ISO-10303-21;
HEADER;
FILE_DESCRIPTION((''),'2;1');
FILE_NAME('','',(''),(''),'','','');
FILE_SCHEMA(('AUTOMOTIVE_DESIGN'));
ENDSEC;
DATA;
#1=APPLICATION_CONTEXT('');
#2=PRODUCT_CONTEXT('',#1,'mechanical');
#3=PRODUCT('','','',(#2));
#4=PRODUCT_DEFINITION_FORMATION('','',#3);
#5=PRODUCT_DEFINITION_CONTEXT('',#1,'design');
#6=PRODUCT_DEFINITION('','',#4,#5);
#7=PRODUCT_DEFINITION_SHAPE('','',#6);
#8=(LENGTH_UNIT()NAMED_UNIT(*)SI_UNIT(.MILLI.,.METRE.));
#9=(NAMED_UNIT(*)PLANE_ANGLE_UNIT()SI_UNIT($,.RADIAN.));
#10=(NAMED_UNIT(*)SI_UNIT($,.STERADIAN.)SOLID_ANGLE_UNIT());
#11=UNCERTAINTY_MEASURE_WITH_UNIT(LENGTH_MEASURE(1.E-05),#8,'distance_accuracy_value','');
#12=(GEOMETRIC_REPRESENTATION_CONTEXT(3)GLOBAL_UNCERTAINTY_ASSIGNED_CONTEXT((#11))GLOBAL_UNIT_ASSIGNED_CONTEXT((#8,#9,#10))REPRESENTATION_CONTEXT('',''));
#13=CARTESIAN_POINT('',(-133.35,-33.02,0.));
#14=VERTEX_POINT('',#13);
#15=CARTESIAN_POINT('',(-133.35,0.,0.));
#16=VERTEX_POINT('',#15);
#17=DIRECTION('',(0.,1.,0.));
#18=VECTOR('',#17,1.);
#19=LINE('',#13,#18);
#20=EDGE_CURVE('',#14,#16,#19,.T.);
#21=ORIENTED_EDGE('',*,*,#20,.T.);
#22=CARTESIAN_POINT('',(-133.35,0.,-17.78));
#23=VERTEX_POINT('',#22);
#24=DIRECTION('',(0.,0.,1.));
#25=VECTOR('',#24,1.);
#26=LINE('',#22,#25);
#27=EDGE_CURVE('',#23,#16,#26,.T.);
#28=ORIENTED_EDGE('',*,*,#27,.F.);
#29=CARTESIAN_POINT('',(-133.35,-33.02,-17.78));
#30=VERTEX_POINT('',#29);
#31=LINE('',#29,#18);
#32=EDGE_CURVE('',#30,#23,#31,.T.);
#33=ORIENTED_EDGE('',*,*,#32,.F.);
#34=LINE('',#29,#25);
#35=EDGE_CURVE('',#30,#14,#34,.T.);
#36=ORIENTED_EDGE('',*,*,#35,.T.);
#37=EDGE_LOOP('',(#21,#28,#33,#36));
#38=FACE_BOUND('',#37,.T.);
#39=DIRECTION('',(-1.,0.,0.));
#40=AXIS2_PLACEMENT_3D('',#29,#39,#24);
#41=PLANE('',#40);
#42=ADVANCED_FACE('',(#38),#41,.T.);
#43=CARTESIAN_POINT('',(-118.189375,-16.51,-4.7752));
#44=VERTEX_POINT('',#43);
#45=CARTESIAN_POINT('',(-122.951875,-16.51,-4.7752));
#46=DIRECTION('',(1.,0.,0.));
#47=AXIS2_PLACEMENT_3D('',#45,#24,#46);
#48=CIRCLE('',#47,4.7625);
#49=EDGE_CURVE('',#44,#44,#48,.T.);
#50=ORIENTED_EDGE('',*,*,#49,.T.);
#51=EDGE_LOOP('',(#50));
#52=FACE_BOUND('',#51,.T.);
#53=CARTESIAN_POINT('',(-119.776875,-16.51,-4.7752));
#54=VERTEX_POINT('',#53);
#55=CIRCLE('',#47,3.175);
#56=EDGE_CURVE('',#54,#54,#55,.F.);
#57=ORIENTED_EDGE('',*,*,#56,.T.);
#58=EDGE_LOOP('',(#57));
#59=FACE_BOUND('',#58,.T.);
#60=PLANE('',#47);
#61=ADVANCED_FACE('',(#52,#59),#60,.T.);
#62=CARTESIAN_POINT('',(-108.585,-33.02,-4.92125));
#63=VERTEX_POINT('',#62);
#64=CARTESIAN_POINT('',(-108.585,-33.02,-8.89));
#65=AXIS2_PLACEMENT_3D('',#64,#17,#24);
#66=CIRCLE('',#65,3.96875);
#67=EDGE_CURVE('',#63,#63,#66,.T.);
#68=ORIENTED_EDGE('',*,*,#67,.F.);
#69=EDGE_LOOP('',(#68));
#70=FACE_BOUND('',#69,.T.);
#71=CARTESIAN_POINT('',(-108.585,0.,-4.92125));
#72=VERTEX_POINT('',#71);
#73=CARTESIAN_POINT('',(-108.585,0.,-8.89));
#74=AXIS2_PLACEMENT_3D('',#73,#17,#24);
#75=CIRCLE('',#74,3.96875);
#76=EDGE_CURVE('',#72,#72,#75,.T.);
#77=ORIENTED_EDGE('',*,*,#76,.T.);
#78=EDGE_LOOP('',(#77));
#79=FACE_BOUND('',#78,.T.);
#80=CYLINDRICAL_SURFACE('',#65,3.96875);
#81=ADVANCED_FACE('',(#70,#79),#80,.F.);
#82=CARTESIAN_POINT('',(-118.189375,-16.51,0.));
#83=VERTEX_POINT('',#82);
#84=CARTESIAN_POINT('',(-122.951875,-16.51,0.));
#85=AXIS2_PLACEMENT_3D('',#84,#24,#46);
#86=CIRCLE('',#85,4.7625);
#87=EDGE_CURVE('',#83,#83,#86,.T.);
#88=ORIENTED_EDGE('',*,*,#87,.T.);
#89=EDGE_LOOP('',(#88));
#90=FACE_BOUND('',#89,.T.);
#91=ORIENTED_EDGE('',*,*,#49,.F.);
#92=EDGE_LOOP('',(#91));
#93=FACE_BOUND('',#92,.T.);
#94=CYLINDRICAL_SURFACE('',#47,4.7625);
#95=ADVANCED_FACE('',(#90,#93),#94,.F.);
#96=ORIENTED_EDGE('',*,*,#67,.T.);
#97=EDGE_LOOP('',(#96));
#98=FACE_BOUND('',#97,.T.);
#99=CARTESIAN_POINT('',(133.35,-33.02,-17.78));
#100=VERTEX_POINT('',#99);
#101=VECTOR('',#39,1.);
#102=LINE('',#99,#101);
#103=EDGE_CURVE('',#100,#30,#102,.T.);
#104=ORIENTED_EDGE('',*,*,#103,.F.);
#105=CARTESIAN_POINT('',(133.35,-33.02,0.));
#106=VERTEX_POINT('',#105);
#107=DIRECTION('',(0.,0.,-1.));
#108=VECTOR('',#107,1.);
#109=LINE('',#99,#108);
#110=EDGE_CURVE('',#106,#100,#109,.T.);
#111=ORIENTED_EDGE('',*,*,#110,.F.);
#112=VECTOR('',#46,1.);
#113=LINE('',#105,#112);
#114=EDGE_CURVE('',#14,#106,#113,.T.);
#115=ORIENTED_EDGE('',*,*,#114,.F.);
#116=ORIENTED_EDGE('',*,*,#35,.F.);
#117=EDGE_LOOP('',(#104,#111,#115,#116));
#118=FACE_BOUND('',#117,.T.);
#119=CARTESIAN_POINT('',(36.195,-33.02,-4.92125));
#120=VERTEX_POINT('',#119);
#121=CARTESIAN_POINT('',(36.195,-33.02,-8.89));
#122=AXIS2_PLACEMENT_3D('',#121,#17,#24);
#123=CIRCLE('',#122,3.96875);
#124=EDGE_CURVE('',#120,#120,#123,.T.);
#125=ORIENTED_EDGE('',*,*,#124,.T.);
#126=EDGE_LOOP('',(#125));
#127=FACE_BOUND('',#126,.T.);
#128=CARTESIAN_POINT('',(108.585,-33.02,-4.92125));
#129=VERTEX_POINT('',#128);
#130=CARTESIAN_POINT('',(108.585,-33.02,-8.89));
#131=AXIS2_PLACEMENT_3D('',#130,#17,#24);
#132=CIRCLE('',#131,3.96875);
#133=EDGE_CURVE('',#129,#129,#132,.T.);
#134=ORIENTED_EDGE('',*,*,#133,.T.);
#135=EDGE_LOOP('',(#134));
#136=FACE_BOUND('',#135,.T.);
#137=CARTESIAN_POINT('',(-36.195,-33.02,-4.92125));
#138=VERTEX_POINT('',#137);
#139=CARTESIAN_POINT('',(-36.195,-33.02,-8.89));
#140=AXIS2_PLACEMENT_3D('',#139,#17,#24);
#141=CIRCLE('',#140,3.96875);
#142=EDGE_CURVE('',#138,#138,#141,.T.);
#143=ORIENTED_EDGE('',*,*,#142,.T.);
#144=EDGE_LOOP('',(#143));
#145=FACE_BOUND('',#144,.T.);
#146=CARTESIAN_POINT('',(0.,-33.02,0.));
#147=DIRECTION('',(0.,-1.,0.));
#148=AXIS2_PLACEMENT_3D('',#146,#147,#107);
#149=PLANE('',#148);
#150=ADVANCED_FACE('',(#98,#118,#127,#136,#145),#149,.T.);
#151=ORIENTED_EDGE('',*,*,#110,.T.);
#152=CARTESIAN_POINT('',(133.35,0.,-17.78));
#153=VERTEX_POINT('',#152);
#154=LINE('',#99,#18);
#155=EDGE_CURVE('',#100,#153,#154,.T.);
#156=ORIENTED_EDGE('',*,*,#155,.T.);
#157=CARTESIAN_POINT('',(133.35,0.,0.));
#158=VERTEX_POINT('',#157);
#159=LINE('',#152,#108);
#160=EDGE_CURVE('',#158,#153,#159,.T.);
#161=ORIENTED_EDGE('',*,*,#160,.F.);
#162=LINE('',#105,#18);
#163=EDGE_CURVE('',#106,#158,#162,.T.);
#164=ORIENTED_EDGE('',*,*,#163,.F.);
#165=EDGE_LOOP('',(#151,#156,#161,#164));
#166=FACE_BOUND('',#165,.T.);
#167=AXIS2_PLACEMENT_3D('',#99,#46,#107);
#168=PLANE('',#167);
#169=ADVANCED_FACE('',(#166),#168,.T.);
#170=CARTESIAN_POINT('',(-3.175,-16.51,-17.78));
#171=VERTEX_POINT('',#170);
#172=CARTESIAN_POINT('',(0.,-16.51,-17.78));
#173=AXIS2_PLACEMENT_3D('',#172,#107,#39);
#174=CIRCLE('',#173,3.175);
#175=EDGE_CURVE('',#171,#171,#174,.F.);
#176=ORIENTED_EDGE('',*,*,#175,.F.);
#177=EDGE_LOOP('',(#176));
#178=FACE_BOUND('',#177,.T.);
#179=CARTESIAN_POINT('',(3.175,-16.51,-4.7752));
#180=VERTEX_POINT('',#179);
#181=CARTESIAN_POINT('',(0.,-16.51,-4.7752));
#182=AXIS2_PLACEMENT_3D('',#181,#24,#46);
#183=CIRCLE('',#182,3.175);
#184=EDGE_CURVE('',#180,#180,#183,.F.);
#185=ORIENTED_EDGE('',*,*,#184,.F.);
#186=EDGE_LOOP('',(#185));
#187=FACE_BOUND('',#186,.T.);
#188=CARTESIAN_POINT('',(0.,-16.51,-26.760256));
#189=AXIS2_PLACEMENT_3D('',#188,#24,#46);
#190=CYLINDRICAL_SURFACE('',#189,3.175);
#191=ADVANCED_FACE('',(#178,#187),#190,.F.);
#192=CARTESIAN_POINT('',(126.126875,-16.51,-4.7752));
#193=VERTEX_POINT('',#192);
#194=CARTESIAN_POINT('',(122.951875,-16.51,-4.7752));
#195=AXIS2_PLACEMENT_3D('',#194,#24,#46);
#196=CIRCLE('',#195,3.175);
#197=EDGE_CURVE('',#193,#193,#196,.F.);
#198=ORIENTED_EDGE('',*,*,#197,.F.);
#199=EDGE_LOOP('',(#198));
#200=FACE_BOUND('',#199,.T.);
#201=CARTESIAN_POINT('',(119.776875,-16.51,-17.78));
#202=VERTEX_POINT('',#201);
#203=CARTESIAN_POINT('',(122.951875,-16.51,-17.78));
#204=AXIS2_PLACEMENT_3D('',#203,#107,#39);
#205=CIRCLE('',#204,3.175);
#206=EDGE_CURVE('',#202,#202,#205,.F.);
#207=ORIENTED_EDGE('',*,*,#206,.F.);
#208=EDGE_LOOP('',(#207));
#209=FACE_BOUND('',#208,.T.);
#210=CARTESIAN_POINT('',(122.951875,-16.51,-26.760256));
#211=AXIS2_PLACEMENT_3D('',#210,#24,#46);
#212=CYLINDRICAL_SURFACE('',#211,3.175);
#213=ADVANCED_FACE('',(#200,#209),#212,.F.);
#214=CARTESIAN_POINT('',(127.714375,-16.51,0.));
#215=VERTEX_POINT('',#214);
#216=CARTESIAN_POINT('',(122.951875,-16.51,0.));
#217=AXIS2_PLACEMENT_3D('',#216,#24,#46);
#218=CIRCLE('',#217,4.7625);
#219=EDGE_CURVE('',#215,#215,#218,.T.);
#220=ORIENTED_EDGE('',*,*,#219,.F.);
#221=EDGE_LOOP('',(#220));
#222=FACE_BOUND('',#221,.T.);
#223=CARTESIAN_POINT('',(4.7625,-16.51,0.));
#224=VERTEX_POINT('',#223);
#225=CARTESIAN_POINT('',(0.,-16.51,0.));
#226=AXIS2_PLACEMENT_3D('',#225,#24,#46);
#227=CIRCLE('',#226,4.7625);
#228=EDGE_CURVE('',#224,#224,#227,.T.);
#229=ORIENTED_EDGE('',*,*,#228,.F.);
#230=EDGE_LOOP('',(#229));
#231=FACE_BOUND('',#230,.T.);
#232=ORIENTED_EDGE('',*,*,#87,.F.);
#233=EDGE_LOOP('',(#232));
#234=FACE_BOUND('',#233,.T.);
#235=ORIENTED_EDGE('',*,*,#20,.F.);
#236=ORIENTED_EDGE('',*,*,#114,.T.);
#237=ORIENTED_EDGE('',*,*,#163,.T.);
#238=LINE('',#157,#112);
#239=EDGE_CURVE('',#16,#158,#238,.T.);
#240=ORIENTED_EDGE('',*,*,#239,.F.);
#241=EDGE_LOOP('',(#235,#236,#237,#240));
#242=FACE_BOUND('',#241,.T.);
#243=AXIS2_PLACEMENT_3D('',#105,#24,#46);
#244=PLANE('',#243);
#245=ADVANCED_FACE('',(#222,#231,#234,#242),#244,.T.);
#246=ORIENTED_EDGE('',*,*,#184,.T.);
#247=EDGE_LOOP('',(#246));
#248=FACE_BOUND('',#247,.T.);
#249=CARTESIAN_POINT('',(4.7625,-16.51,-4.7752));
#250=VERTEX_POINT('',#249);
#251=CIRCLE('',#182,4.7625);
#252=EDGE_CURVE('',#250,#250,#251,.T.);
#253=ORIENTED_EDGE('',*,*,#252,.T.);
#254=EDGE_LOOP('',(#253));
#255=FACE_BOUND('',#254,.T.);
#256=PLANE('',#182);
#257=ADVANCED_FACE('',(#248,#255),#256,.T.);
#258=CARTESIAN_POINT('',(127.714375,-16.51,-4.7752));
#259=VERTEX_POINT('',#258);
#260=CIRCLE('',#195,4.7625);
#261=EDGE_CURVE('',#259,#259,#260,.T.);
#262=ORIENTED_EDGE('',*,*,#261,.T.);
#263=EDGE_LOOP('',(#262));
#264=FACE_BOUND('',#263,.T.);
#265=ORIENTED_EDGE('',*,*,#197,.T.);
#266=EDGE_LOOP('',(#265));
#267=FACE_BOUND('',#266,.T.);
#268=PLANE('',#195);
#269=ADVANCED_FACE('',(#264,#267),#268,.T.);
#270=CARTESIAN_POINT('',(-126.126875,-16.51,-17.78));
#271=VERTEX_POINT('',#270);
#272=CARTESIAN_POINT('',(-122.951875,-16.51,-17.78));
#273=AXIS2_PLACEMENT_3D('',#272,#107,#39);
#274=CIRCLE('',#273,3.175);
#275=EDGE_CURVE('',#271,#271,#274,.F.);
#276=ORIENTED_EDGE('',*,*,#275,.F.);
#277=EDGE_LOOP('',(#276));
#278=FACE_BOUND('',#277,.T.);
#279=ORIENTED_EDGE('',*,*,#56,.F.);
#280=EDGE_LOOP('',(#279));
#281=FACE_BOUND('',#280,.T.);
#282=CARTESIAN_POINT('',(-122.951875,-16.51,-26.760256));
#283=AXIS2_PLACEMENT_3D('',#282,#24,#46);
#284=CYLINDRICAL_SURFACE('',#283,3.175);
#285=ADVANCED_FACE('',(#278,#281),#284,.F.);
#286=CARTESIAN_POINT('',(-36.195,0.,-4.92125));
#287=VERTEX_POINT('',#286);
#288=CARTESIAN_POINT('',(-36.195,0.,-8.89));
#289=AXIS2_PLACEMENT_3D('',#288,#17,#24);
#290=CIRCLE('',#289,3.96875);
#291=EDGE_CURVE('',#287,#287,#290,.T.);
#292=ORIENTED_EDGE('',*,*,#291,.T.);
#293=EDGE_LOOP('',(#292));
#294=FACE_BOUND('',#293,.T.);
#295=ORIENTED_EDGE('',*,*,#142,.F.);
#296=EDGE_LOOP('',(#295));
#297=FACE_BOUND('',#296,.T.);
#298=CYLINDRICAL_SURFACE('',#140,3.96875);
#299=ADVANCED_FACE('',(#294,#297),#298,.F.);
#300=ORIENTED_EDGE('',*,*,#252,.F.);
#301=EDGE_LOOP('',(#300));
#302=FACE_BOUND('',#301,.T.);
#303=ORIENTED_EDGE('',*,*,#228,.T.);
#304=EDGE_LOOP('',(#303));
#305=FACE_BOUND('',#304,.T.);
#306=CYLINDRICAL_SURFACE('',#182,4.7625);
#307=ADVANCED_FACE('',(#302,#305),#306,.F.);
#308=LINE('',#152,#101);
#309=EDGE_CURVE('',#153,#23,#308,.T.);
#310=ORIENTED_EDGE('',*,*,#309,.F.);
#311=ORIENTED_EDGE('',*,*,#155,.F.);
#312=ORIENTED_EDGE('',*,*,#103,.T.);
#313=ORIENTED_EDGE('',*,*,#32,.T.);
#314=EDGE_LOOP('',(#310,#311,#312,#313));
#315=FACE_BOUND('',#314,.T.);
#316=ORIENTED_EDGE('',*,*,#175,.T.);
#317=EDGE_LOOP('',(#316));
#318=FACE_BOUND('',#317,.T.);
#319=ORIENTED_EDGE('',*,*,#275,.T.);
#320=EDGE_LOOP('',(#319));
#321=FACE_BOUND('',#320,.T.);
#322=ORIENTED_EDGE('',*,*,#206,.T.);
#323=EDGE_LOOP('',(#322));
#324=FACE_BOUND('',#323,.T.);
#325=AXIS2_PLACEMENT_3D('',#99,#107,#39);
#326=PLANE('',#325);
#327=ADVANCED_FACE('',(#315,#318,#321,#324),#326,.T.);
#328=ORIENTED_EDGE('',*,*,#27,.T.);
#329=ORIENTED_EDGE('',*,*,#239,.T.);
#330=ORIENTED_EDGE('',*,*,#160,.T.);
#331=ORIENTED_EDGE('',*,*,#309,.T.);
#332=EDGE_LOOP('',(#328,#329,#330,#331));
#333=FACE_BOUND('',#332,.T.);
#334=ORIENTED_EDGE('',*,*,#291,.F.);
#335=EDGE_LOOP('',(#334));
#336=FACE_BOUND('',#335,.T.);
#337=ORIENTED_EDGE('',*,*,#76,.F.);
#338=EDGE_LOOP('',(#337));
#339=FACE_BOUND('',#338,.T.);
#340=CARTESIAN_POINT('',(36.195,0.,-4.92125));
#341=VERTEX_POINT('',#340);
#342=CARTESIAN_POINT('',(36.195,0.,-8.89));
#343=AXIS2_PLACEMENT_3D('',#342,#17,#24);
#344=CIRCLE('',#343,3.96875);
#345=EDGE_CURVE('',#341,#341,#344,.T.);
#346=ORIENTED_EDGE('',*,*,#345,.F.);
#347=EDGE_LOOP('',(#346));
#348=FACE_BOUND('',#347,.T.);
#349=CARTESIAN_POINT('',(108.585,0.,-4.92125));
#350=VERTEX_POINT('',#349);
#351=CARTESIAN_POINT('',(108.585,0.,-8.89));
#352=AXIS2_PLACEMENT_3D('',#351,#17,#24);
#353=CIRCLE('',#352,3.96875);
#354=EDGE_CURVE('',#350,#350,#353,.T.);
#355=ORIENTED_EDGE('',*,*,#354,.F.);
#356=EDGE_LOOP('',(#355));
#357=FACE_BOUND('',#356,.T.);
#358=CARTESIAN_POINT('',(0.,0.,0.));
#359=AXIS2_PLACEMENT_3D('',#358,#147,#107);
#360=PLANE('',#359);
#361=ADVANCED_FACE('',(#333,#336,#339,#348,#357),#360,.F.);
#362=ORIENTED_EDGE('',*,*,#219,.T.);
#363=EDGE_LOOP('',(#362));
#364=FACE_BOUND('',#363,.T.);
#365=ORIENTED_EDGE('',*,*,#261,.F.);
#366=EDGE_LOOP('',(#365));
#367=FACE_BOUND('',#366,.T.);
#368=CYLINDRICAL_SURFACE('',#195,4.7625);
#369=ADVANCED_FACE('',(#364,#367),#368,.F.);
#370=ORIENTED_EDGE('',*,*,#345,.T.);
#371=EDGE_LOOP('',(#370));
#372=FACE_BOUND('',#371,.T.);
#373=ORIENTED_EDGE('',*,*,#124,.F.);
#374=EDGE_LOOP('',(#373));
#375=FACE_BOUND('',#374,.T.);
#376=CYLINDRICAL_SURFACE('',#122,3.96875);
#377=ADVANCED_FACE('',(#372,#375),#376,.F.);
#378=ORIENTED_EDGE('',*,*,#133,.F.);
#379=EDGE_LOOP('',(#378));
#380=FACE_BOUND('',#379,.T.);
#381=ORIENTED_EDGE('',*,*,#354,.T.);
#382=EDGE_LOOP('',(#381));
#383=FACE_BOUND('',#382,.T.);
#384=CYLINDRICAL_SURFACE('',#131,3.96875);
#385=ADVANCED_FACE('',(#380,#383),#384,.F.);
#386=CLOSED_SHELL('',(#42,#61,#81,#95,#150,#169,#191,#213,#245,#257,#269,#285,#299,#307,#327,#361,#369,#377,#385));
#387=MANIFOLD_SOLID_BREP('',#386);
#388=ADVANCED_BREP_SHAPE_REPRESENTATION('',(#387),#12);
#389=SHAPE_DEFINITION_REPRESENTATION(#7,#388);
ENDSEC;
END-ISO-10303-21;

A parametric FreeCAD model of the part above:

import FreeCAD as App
import Part
import Sketcher

V = App.Vector
Q = App.Units.Quantity


def add_polygon(sketch, points):
    """Adds a closed chain of lines whose ends are joined by coincident constraints."""
    first, n = sketch.GeometryCount, len(points)
    for a, b in zip(points, points[1:] + points[:1]):
        sketch.addGeometry(Part.LineSegment(App.Vector(*a, 0), App.Vector(*b, 0)), False)
    for i in range(n):
        sketch.addConstraint(Sketcher.Constraint("Coincident", first + i, 2, first + (i + 1) % n, 1))

doc = App.newDocument("Part")
body = doc.addObject("PartDesign::Body", "Body")

# Sketch on XZ plane
sketch1 = body.newObject("Sketcher::SketchObject", "Sketch")
sketch1.AttachmentSupport = (doc.getObject("XZ_Plane"), [""])
sketch1.MapMode = "FlatFace"
add_polygon(sketch1, [(-133.35, -17.78), (-133.35, 0), (133.35, 0), (133.35, -17.78)])  # lines 0-3
sketch1.addGeometry(Part.Circle(V(-108.585, -8.89, 0), V(0, 0, 1), 3.96875), False)  # 4
sketch1.addGeometry(Part.Circle(V(-36.195, -8.89, 0), V(0, 0, 1), 3.96875), False)  # 5
sketch1.addGeometry(Part.Circle(V(36.195, -8.89, 0), V(0, 0, 1), 3.96875), False)  # 6
sketch1.addGeometry(Part.Circle(V(108.585, -8.89, 0), V(0, 0, 1), 3.96875), False)  # 7
sketch1.addConstraint(Sketcher.Constraint("Vertical", 0))
sketch1.addConstraint(Sketcher.Constraint("Horizontal", 1))
sketch1.addConstraint(Sketcher.Constraint("Vertical", 2))
sketch1.addConstraint(Sketcher.Constraint("Horizontal", 3))
sketch1.addConstraint(Sketcher.Constraint("Equal", 4, 5))
sketch1.addConstraint(Sketcher.Constraint("Equal", 5, 6))
sketch1.addConstraint(Sketcher.Constraint("Equal", 6, 7))
sketch1.addConstraint(Sketcher.Constraint("Symmetric", 0, 2, 1, 2, -1, 1))
sketch1.addConstraint(Sketcher.Constraint("Symmetric", 5, 3, 6, 3, -2))
sketch1.addConstraint(Sketcher.Constraint("Symmetric", 4, 3, 7, 3, -2))
sketch1.addConstraint(Sketcher.Constraint("Horizontal", 4, 3, 5, 3))
sketch1.addConstraint(Sketcher.Constraint("Diameter", 4, Q("0.3125 in")))
sketch1.addConstraint(Sketcher.Constraint("DistanceX", 1, 1, 1, 2, Q("10.5 in")))
sketch1.addConstraint(Sketcher.Constraint("DistanceY", 0, 1, 0, 2, Q("0.7 in")))
sketch1.addConstraint(Sketcher.Constraint("DistanceX", 4, 3, 6, 3, Q("5.7 in")))
sketch1.addConstraint(Sketcher.Constraint("DistanceY", 4, 3, -1, 1, Q("0.35 in")))
sketch1.addConstraint(Sketcher.Constraint("DistanceX", 4, 3, 5, 3, Q("2.85 in")))
pad1 = body.newObject("PartDesign::Pad", "Pad")
pad1.Profile = sketch1
pad1.Length = Q("1.3 in")

# Sketch on XY plane
sketch2 = body.newObject("Sketcher::SketchObject", "Sketch001")
sketch2.AttachmentSupport = (doc.getObject("XY_Plane"), [""])
sketch2.MapMode = "FlatFace"
sketch2.addGeometry(Part.Circle(V(122.951875, -16.51, 0), V(0, 0, 1), 3.175), False)
sketch2.addGeometry(Part.Circle(V(0, -16.51, 0), V(0, 0, 1), 3.175), False)
sketch2.addGeometry(Part.Circle(V(-122.951875, -16.51, 0), V(0, 0, 1), 3.175), False)
sketch2.addConstraint(Sketcher.Constraint("Equal", 0, 1))
sketch2.addConstraint(Sketcher.Constraint("Equal", 1, 2))
sketch2.addConstraint(Sketcher.Constraint("Symmetric", 0, 3, 2, 3, -2))
sketch2.addConstraint(Sketcher.Constraint("PointOnObject", 1, 3, -2))
sketch2.addConstraint(Sketcher.Constraint("Horizontal", 0, 3, 1, 3))
sketch2.addConstraint(Sketcher.Constraint("Diameter", 0, Q("0.25 in")))
sketch2.addConstraint(Sketcher.Constraint("DistanceY", 0, 3, -1, 1, Q("0.65 in")))
sketch2.addConstraint(Sketcher.Constraint("DistanceX", 2, 3, 0, 3, Q("245.90375 mm")))
pocket1 = body.newObject("PartDesign::Pocket", "Pocket")
pocket1.Profile = sketch2
pocket1.Length = Q("0.7 in")

# Sketch on XY plane
sketch3 = body.newObject("Sketcher::SketchObject", "Sketch002")
sketch3.AttachmentSupport = (doc.getObject("XY_Plane"), [""])
sketch3.MapMode = "FlatFace"
sketch3.addGeometry(Part.Circle(V(122.951875, -16.51, 0), V(0, 0, 1), 4.7625), False)
sketch3.addGeometry(Part.Circle(V(0, -16.51, 0), V(0, 0, 1), 4.7625), False)
sketch3.addGeometry(Part.Circle(V(-122.951875, -16.51, 0), V(0, 0, 1), 4.7625), False)
sketch3.addConstraint(Sketcher.Constraint("Equal", 0, 1))
sketch3.addConstraint(Sketcher.Constraint("Equal", 1, 2))
sketch3.addConstraint(Sketcher.Constraint("Symmetric", 0, 3, 2, 3, -2))
sketch3.addConstraint(Sketcher.Constraint("PointOnObject", 1, 3, -2))
sketch3.addConstraint(Sketcher.Constraint("Horizontal", 0, 3, 1, 3))
sketch3.addConstraint(Sketcher.Constraint("Diameter", 0, Q("0.375 in")))
sketch3.addConstraint(Sketcher.Constraint("DistanceY", 0, 3, -1, 1, Q("0.65 in")))
sketch3.addConstraint(Sketcher.Constraint("DistanceX", 2, 3, 0, 3, Q("245.90375 mm")))
pocket2 = body.newObject("PartDesign::Pocket", "Pocket001")
pocket2.Profile = sketch3
pocket2.Length = Q("0.188 in")

doc.recompute()
